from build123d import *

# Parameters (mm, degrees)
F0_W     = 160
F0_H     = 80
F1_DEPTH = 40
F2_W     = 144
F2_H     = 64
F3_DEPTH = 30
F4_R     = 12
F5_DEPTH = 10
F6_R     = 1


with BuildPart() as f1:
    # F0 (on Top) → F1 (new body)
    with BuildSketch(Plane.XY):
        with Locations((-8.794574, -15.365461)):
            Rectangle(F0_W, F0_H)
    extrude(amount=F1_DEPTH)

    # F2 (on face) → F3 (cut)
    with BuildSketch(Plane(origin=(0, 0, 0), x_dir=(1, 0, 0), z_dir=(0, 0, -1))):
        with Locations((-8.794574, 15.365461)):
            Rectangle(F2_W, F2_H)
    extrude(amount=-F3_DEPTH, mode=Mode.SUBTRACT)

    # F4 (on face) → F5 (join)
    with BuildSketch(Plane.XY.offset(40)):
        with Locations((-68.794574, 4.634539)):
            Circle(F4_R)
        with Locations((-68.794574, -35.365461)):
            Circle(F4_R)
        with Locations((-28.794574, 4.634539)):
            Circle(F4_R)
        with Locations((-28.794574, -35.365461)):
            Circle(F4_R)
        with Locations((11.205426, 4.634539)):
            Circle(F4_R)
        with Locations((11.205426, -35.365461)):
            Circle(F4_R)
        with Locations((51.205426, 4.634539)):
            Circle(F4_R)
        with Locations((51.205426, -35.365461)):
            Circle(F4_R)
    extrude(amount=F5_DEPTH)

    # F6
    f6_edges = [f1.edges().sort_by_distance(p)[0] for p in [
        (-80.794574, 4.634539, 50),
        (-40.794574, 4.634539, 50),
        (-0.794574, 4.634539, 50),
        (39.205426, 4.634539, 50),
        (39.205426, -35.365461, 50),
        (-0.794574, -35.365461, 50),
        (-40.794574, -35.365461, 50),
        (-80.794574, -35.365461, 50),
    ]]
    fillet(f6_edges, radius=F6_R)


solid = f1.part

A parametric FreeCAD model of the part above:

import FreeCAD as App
import Part
import Sketcher


def edges_at(feature, points):
    """Names of the edges that pass closest to the given points."""
    edges = feature.Shape.Edges
    near = lambda p: min(range(len(edges)), key=lambda i: edges[i].distToShape(Part.Vertex(*p))[0])
    return sorted({f"Edge{near(p) + 1}" for p in points})

doc = App.newDocument("Part")
body = doc.addObject("PartDesign::Body", "Body")

sketch1 = body.newObject("Sketcher::SketchObject", "Sketch")
sketch1.AttachmentSupport = (doc.getObject("XY_Plane"), [""])
sketch1.MapMode = "FlatFace"
sketch1.addGeometry([
    Part.LineSegment(App.Vector(-89, 25, 0), App.Vector(-89, -55, 0)),
    Part.LineSegment(App.Vector(-89, -55, 0), App.Vector(71, -55, 0)),
    Part.LineSegment(App.Vector(71, -55, 0), App.Vector(71, 25, 0)),
    Part.LineSegment(App.Vector(71, 25, 0), App.Vector(-89, 25, 0)),
], False)
sketch1.addConstraint([
    Sketcher.Constraint("Coincident", 0, 2, 1, 1),
    Sketcher.Constraint("Coincident", 1, 2, 2, 1),
    Sketcher.Constraint("Coincident", 2, 2, 3, 1),
    Sketcher.Constraint("Coincident", 3, 2, 0, 1),
    Sketcher.Constraint("Vertical", 0),
    Sketcher.Constraint("Horizontal", 1),
    Sketcher.Constraint("Vertical", 2),
    Sketcher.Constraint("Horizontal", 3),
    Sketcher.Constraint("DistanceX", 1, 1, 1, 2, 160.0),
    Sketcher.Constraint("DistanceY", 0, 2, 0, 1, 80.0),
    Sketcher.Constraint("DistanceY", 0, 2, -1, 1, 55.365461),
    Sketcher.Constraint("DistanceX", 0, 2, -1, 1, 88.794574),
])
pad1 = body.newObject("PartDesign::Pad", "Pad")
pad1.Profile = sketch1
pad1.Length = 40

sketch2 = body.newObject("Sketcher::SketchObject", "Sketch001")
sketch2.AttachmentSupport = (doc.getObject("XY_Plane"), [""])
sketch2.MapMode = "FlatFace"
sketch2.addGeometry([
    Part.LineSegment(App.Vector(-81, -47, 0), App.Vector(-81, 17, 0)),
    Part.LineSegment(App.Vector(-81, 17, 0), App.Vector(63, 17, 0)),
    Part.LineSegment(App.Vector(63, 17, 0), App.Vector(63, -47, 0)),
    Part.LineSegment(App.Vector(63, -47, 0), App.Vector(-81, -47, 0)),
], False)
sketch2.addConstraint([
    Sketcher.Constraint("Coincident", 0, 2, 1, 1),
    Sketcher.Constraint("Coincident", 1, 2, 2, 1),
    Sketcher.Constraint("Coincident", 2, 2, 3, 1),
    Sketcher.Constraint("Coincident", 3, 2, 0, 1),
    Sketcher.Constraint("Vertical", 0),
    Sketcher.Constraint("Horizontal", 1),
    Sketcher.Constraint("Vertical", 2),
    Sketcher.Constraint("Horizontal", 3),
    Sketcher.Constraint("DistanceX", 1, 1, 1, 2, 144.0),
    Sketcher.Constraint("DistanceY", 0, 1, 0, 2, 64.0),
    Sketcher.Constraint("DistanceY", -1, 1, 0, 2, 16.634539),
    Sketcher.Constraint("DistanceX", 0, 2, -1, 1, 80.794574),
])
pocket1 = body.newObject("PartDesign::Pocket", "Pocket")
pocket1.Profile = sketch2
pocket1.Length = 30
pocket1.Reversed = True

sketch3 = body.newObject("Sketcher::SketchObject", "Sketch002")
sketch3.AttachmentSupport = (doc.getObject("XY_Plane"), [""])
sketch3.MapMode = "FlatFace"
sketch3.AttachmentOffset = App.Placement(App.Vector(0, 0, 40), App.Rotation())
sketch3.addGeometry([
    Part.Circle(App.Vector(-69, 5, 0), App.Vector(0, 0, 1), 12),
    Part.Circle(App.Vector(-69, -35, 0), App.Vector(0, 0, 1), 12),
    Part.Circle(App.Vector(-29, 5, 0), App.Vector(0, 0, 1), 12),
    Part.Circle(App.Vector(-29, -35, 0), App.Vector(0, 0, 1), 12),
    Part.Circle(App.Vector(11, 5, 0), App.Vector(0, 0, 1), 12),
    Part.Circle(App.Vector(11, -35, 0), App.Vector(0, 0, 1), 12),
    Part.Circle(App.Vector(51, 5, 0), App.Vector(0, 0, 1), 12),
    Part.Circle(App.Vector(51, -35, 0), App.Vector(0, 0, 1), 12),
], False)
sketch3.addConstraint([
    Sketcher.Constraint("Equal", 0, 1),
    Sketcher.Constraint("Equal", 1, 2),
    Sketcher.Constraint("Equal", 2, 3),
    Sketcher.Constraint("Equal", 3, 4),
    Sketcher.Constraint("Equal", 4, 5),
    Sketcher.Constraint("Equal", 5, 6),
    Sketcher.Constraint("Equal", 6, 7),
    Sketcher.Constraint("Horizontal", 0, 3, 2, 3),
    Sketcher.Constraint("Horizontal", 1, 3, 3, 3),
    Sketcher.Constraint("Horizontal", 2, 3, 4, 3),
    Sketcher.Constraint("Horizontal", 3, 3, 5, 3),
    Sketcher.Constraint("Horizontal", 4, 3, 6, 3),
    Sketcher.Constraint("Horizontal", 5, 3, 7, 3),
    Sketcher.Constraint("Vertical", 0, 3, 1, 3),
    Sketcher.Constraint("Vertical", 2, 3, 3, 3),
    Sketcher.Constraint("Vertical", 4, 3, 5, 3),
    Sketcher.Constraint("Vertical", 6, 3, 7, 3),
    Sketcher.Constraint("Diameter", 0, 24.0),
    Sketcher.Constraint("DistanceY", 1, 3, 0, 3, 40.0),
    Sketcher.Constraint("DistanceX", 0, 3, 2, 3, 40.0),
    Sketcher.Constraint("DistanceX", 2, 3, 4, 3, 40.0),
    Sketcher.Constraint("DistanceX", 4, 3, 6, 3, 40.0),
    Sketcher.Constraint("DistanceY", -1, 1, 0, 3, 4.634539),
    Sketcher.Constraint("DistanceX", 0, 3, -1, 1, 68.794574),
])
pad2 = body.newObject("PartDesign::Pad", "Pad001")
pad2.Profile = sketch3
pad2.Length = 10
doc.recompute()

fillet = body.newObject("PartDesign::Fillet", "Fillet")
fillet.Base = (pad2, edges_at(pad2, [
    (-80.795, 4.635, 50),
    (-40.795, 4.635, 50),
    (-0.795, 4.635, 50),
    (39.205, 4.635, 50),
    (39.205, -35.365, 50),
    (-0.795, -35.365, 50),
    (-40.795, -35.365, 50),
    (-80.795, -35.365, 50),
]))
fillet.Radius = 1

doc.recompute()
